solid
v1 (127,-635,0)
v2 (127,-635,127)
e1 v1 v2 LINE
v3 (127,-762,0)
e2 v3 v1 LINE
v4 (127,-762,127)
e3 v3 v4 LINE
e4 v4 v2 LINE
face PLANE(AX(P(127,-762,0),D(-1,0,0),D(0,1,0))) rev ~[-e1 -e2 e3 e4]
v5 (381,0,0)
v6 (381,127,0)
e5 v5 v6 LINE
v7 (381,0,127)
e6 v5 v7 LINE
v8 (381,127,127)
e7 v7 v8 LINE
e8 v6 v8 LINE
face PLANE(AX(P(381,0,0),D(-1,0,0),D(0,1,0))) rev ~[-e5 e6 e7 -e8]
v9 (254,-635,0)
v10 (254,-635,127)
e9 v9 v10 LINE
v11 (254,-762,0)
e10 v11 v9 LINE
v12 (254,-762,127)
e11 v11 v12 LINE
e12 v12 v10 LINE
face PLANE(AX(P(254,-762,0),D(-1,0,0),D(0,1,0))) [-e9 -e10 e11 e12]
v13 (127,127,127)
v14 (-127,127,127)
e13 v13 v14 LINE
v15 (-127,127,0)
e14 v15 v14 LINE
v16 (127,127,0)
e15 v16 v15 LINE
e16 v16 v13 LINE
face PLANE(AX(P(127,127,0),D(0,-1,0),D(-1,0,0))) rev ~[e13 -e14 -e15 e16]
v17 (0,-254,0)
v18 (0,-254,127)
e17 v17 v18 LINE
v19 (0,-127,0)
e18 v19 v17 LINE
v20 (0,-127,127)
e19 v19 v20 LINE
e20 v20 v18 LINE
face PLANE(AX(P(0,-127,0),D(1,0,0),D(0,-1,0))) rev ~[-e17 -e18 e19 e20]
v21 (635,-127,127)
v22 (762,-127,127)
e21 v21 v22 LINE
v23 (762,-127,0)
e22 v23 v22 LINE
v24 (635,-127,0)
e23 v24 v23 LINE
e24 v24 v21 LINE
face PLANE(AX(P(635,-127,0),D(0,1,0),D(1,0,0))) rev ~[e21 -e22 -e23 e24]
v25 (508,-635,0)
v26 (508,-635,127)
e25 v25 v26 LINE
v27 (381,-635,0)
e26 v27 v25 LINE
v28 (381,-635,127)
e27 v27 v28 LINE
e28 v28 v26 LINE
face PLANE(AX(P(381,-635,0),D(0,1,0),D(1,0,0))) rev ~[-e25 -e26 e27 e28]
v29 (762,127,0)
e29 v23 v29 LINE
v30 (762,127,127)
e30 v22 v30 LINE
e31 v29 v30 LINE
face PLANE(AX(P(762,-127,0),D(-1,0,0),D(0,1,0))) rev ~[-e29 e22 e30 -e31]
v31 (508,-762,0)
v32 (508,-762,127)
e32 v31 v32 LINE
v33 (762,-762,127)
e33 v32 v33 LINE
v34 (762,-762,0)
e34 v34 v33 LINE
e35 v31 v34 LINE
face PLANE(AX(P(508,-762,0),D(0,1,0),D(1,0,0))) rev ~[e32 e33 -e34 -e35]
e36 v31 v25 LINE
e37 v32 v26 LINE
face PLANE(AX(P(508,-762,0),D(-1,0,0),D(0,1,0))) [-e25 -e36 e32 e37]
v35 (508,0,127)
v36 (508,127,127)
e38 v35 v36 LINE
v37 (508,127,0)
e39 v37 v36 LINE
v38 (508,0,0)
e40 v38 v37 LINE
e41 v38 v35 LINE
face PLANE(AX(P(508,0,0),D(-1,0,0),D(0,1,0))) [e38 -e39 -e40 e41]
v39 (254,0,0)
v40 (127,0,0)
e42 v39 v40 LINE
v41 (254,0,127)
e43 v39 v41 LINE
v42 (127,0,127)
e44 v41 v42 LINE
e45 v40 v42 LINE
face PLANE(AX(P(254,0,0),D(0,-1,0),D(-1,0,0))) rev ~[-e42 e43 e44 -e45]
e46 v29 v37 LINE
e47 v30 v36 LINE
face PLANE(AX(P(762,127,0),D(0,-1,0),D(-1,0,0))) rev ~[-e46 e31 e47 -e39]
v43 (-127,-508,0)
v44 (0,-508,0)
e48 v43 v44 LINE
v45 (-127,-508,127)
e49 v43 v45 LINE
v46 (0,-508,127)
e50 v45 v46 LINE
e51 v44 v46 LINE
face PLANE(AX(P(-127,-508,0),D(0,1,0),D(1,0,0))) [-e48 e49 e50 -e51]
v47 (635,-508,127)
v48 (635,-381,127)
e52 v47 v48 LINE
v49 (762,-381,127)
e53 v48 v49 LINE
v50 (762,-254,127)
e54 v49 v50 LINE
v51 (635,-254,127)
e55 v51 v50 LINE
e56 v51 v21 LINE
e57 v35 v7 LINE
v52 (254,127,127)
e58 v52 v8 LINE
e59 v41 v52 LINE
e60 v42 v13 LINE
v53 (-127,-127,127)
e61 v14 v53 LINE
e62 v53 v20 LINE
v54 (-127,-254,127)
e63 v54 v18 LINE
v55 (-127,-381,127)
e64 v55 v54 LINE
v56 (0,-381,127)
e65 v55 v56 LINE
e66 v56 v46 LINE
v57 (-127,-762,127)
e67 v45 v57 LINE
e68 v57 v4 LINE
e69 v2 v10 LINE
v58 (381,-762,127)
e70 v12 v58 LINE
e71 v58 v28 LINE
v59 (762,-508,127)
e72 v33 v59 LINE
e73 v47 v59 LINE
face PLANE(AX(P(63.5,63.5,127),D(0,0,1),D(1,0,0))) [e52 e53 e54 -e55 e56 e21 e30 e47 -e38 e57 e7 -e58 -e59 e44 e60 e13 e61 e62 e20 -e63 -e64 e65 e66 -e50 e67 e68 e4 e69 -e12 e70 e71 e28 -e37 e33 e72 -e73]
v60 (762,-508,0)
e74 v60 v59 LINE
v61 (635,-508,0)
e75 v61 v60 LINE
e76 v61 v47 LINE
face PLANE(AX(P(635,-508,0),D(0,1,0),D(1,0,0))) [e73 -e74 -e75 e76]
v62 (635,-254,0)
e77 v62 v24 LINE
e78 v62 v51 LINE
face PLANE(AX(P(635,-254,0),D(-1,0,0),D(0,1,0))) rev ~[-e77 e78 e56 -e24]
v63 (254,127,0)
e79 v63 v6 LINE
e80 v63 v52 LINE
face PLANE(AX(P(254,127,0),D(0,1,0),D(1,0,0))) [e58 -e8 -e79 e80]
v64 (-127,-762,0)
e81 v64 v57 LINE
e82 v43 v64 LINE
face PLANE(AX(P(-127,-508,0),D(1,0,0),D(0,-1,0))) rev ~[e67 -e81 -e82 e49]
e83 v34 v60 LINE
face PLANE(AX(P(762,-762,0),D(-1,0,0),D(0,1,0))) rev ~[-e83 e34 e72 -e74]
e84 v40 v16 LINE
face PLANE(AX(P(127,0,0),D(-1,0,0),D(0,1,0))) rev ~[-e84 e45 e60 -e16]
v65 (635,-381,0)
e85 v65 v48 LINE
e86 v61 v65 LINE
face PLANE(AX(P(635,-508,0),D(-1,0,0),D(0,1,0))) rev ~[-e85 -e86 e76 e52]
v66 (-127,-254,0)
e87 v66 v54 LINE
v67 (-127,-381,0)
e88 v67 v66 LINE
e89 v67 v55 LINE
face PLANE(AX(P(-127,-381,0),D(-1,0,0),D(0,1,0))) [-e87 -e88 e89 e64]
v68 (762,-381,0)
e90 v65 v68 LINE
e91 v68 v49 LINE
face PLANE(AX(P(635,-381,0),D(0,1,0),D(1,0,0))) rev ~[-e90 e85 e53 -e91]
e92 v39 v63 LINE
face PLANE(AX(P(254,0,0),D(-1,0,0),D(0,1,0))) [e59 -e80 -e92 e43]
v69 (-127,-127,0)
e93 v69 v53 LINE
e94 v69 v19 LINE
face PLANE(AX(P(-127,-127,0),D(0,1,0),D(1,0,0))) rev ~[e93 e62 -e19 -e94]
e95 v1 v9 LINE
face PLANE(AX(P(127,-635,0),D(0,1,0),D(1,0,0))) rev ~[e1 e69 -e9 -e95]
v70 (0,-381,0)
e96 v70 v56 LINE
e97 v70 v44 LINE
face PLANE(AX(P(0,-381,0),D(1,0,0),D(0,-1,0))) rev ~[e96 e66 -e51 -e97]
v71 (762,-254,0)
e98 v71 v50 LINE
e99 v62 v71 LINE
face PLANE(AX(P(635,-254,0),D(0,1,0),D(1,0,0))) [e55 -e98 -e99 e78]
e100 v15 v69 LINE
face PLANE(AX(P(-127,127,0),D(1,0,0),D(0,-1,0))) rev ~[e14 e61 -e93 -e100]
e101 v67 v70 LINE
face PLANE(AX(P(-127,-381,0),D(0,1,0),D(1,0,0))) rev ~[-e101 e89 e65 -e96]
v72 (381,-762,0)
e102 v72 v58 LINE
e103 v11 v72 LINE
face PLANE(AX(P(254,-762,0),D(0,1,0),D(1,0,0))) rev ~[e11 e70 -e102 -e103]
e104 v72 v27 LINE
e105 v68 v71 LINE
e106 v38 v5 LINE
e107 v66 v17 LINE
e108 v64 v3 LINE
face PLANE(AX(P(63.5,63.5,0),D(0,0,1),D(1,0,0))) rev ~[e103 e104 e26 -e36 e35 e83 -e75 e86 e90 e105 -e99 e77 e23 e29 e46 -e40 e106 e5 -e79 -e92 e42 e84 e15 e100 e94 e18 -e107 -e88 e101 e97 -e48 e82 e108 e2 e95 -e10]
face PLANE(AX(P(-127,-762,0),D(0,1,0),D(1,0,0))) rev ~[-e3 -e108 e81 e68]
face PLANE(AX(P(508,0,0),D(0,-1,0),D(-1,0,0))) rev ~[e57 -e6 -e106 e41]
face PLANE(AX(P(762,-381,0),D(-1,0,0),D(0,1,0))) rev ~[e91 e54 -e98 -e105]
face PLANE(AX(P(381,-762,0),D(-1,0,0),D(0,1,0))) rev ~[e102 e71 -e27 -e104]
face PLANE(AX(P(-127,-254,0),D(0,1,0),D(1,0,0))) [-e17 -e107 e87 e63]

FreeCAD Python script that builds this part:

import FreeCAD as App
import Part
import Sketcher
Q = App.Units.Quantity

doc = App.newDocument("Part")
body = doc.addObject("PartDesign::Body", "Body")

# Sketch on XY plane
sketch1 = body.newObject("Sketcher::SketchObject", "Sketch")
sketch1.AttachmentSupport = (doc.getObject("XY_Plane"), [""])
sketch1.MapMode = "FlatFace"
sketch1.addGeometry([
    Part.LineSegment(App.Vector(0, -127, 0), App.Vector(0, -254, 0)),  # 0
    Part.LineSegment(App.Vector(0, -254, 0), App.Vector(-127, -254, 0)),  # 1
    Part.LineSegment(App.Vector(-127, -254, 0), App.Vector(-127, -381, 0)),  # 2
    Part.LineSegment(App.Vector(-127, -381, 0), App.Vector(0, -381, 0)),  # 3
    Part.LineSegment(App.Vector(0, -381, 0), App.Vector(0, -508, 0)),  # 4
    Part.LineSegment(App.Vector(0, -508, 0), App.Vector(-127, -508, 0)),  # 5
    Part.LineSegment(App.Vector(-127, -508, 0), App.Vector(-127, -762, 0)),  # 6
    Part.LineSegment(App.Vector(-127, -762, 0), App.Vector(127, -762, 0)),  # 7
    Part.LineSegment(App.Vector(127, -762, 0), App.Vector(127, -635, 0)),  # 8
    Part.LineSegment(App.Vector(127, -635, 0), App.Vector(254, -635, 0)),  # 9
    Part.LineSegment(App.Vector(254, -635, 0), App.Vector(254, -762, 0)),  # 10
    Part.LineSegment(App.Vector(254, -762, 0), App.Vector(381, -762, 0)),  # 11
    Part.LineSegment(App.Vector(381, -762, 0), App.Vector(381, -635, 0)),  # 12
    Part.LineSegment(App.Vector(381, -635, 0), App.Vector(508, -635, 0)),  # 13
    Part.LineSegment(App.Vector(508, -635, 0), App.Vector(508, -762, 0)),  # 14
    Part.LineSegment(App.Vector(508, -762, 0), App.Vector(762, -762, 0)),  # 15
    Part.LineSegment(App.Vector(762, -762, 0), App.Vector(762, -508, 0)),  # 16
    Part.LineSegment(App.Vector(762, -508, 0), App.Vector(635, -508, 0)),  # 17
    Part.LineSegment(App.Vector(635, -508, 0), App.Vector(635, -381, 0)),  # 18
    Part.LineSegment(App.Vector(635, -381, 0), App.Vector(762, -381, 0)),  # 19
    Part.LineSegment(App.Vector(762, -381, 0), App.Vector(762, -254, 0)),  # 20
    Part.LineSegment(App.Vector(762, -254, 0), App.Vector(635, -254, 0)),  # 21
    Part.LineSegment(App.Vector(635, -254, 0), App.Vector(635, -127, 0)),  # 22
    Part.LineSegment(App.Vector(635, -127, 0), App.Vector(762, -127, 0)),  # 23
    Part.LineSegment(App.Vector(762, -127, 0), App.Vector(762, 127, 0)),  # 24
    Part.LineSegment(App.Vector(762, 127, 0), App.Vector(508, 127, 0)),  # 25
    Part.LineSegment(App.Vector(508, 127, 0), App.Vector(508, 0, 0)),  # 26
    Part.LineSegment(App.Vector(508, 0, 0), App.Vector(381, 0, 0)),  # 27
    Part.LineSegment(App.Vector(381, 0, 0), App.Vector(381, 127, 0)),  # 28
    Part.LineSegment(App.Vector(381, 127, 0), App.Vector(254, 127, 0)),  # 29
    Part.LineSegment(App.Vector(254, 127, 0), App.Vector(254, 0, 0)),  # 30
    Part.LineSegment(App.Vector(254, 0, 0), App.Vector(127, 0, 0)),  # 31
    Part.LineSegment(App.Vector(127, 0, 0), App.Vector(127, 127, 0)),  # 32
    Part.LineSegment(App.Vector(127, 127, 0), App.Vector(-127, 127, 0)),  # 33
    Part.LineSegment(App.Vector(-127, 127, 0), App.Vector(-127, -127, 0)),  # 34
    Part.LineSegment(App.Vector(-127, -127, 0), App.Vector(0, -127, 0)),  # 35
], False)
sketch1.addConstraint([
    Sketcher.Constraint("Coincident", 0, 2, 1, 1),
    Sketcher.Constraint("Coincident", 1, 2, 2, 1),
    Sketcher.Constraint("Coincident", 2, 2, 3, 1),
    Sketcher.Constraint("Coincident", 3, 2, 4, 1),
    Sketcher.Constraint("Coincident", 4, 2, 5, 1),
    Sketcher.Constraint("Coincident", 5, 2, 6, 1),
    Sketcher.Constraint("Coincident", 6, 2, 7, 1),
    Sketcher.Constraint("Coincident", 7, 2, 8, 1),
    Sketcher.Constraint("Coincident", 8, 2, 9, 1),
    Sketcher.Constraint("Coincident", 9, 2, 10, 1),
    Sketcher.Constraint("Coincident", 10, 2, 11, 1),
    Sketcher.Constraint("Coincident", 11, 2, 12, 1),
    Sketcher.Constraint("Coincident", 12, 2, 13, 1),
    Sketcher.Constraint("Coincident", 13, 2, 14, 1),
    Sketcher.Constraint("Coincident", 14, 2, 15, 1),
    Sketcher.Constraint("Coincident", 15, 2, 16, 1),
    Sketcher.Constraint("Coincident", 16, 2, 17, 1),
    Sketcher.Constraint("Coincident", 17, 2, 18, 1),
    Sketcher.Constraint("Coincident", 18, 2, 19, 1),
    Sketcher.Constraint("Coincident", 19, 2, 20, 1),
    Sketcher.Constraint("Coincident", 20, 2, 21, 1),
    Sketcher.Constraint("Coincident", 21, 2, 22, 1),
    Sketcher.Constraint("Coincident", 22, 2, 23, 1),
    Sketcher.Constraint("Coincident", 23, 2, 24, 1),
    Sketcher.Constraint("Coincident", 24, 2, 25, 1),
    Sketcher.Constraint("Coincident", 25, 2, 26, 1),
    Sketcher.Constraint("Coincident", 26, 2, 27, 1),
    Sketcher.Constraint("Coincident", 27, 2, 28, 1),
    Sketcher.Constraint("Coincident", 28, 2, 29, 1),
    Sketcher.Constraint("Coincident", 29, 2, 30, 1),
    Sketcher.Constraint("Coincident", 30, 2, 31, 1),
    Sketcher.Constraint("Coincident", 31, 2, 32, 1),
    Sketcher.Constraint("Coincident", 32, 2, 33, 1),
    Sketcher.Constraint("Coincident", 33, 2, 34, 1),
    Sketcher.Constraint("Coincident", 34, 2, 35, 1),
    Sketcher.Constraint("Coincident", 35, 2, 0, 1),
    Sketcher.Constraint("Vertical", 0),
    Sketcher.Constraint("Horizontal", 1),
    Sketcher.Constraint("Vertical", 2),
    Sketcher.Constraint("Horizontal", 3),
    Sketcher.Constraint("Vertical", 4),
    Sketcher.Constraint("Horizontal", 5),
    Sketcher.Constraint("Vertical", 6),
    Sketcher.Constraint("Horizontal", 7),
    Sketcher.Constraint("Vertical", 8),
    Sketcher.Constraint("Horizontal", 9),
    Sketcher.Constraint("Vertical", 10),
    Sketcher.Constraint("Horizontal", 11),
    Sketcher.Constraint("Vertical", 12),
    Sketcher.Constraint("Horizontal", 13),
    Sketcher.Constraint("Vertical", 14),
    Sketcher.Constraint("Horizontal", 15),
    Sketcher.Constraint("Vertical", 16),
    Sketcher.Constraint("Horizontal", 17),
    Sketcher.Constraint("Vertical", 18),
    Sketcher.Constraint("Horizontal", 19),
    Sketcher.Constraint("Vertical", 20),
    Sketcher.Constraint("Horizontal", 21),
    Sketcher.Constraint("Vertical", 22),
    Sketcher.Constraint("Horizontal", 23),
    Sketcher.Constraint("Vertical", 24),
    Sketcher.Constraint("Horizontal", 25),
    Sketcher.Constraint("Vertical", 26),
    Sketcher.Constraint("Horizontal", 27),
    Sketcher.Constraint("Vertical", 28),
    Sketcher.Constraint("Horizontal", 29),
    Sketcher.Constraint("Vertical", 30),
    Sketcher.Constraint("Horizontal", 31),
    Sketcher.Constraint("Vertical", 32),
    Sketcher.Constraint("Horizontal", 33),
    Sketcher.Constraint("Vertical", 34),
    Sketcher.Constraint("Horizontal", 35),
    Sketcher.Constraint("Symmetric", 32, 2, 34, 2, -1, 1),
    Sketcher.Constraint("PointOnObject", 0, 2, -2),
    Sketcher.Constraint("PointOnObject", 3, 2, -2),
    Sketcher.Constraint("PointOnObject", 26, 2, -1),
    Sketcher.Constraint("PointOnObject", 30, 2, -1),
    Sketcher.Constraint("Horizontal", 7, 2, 10, 2),
    Sketcher.Constraint("Horizontal", 9, 2, 12, 2),
    Sketcher.Constraint("Horizontal", 11, 2, 14, 2),
    Sketcher.Constraint("Horizontal", 5, 2, 16, 2),
    Sketcher.Constraint("Horizontal", 3, 2, 18, 2),
    Sketcher.Constraint("Horizontal", 1, 2, 20, 2),
    Sketcher.Constraint("Horizontal", 25, 2, 28, 2),
    Sketcher.Constraint("Horizontal", 29, 2, 32, 2),
    Sketcher.Constraint("Horizontal", 23, 2, 34, 2),
    Sketcher.Constraint("Vertical", 2, 2, 5, 2),
    Sketcher.Constraint("Vertical", 16, 2, 19, 2),
    Sketcher.Constraint("Vertical", 18, 2, 21, 2),
    Sketcher.Constraint("Vertical", 20, 2, 23, 2),
    Sketcher.Constraint("Vertical", 14, 2, 25, 2),
    Sketcher.Constraint("Vertical", 12, 2, 27, 2),
    Sketcher.Constraint("Vertical", 10, 2, 29, 2),
    Sketcher.Constraint("Vertical", 8, 2, 31, 2),
    Sketcher.Constraint("Vertical", 6, 2, 33, 2),
    Sketcher.Constraint("Equal", 5, 9),
    Sketcher.Constraint("Equal", 9, 11),
    Sketcher.Constraint("Equal", 11, 13),
    Sketcher.Constraint("Equal", 7, 15),
    Sketcher.Constraint("Equal", 13, 17),
    Sketcher.Constraint("Equal", 35, 0),
    Sketcher.Constraint("Equal", 0, 2),
    Sketcher.Constraint("Equal", 2, 4),
    Sketcher.Constraint("Equal", 33, 6),
    Sketcher.Constraint("Equal", 4, 8),
    Sketcher.Constraint("Equal", 16, 24),
    Sketcher.Constraint("DistanceX", 1, 2, 1, 1, Q("5 in")),
])
pad1 = body.newObject("PartDesign::Pad", "Pad")
pad1.Profile = sketch1
pad1.Length = Q("5 in")

doc.recompute()
